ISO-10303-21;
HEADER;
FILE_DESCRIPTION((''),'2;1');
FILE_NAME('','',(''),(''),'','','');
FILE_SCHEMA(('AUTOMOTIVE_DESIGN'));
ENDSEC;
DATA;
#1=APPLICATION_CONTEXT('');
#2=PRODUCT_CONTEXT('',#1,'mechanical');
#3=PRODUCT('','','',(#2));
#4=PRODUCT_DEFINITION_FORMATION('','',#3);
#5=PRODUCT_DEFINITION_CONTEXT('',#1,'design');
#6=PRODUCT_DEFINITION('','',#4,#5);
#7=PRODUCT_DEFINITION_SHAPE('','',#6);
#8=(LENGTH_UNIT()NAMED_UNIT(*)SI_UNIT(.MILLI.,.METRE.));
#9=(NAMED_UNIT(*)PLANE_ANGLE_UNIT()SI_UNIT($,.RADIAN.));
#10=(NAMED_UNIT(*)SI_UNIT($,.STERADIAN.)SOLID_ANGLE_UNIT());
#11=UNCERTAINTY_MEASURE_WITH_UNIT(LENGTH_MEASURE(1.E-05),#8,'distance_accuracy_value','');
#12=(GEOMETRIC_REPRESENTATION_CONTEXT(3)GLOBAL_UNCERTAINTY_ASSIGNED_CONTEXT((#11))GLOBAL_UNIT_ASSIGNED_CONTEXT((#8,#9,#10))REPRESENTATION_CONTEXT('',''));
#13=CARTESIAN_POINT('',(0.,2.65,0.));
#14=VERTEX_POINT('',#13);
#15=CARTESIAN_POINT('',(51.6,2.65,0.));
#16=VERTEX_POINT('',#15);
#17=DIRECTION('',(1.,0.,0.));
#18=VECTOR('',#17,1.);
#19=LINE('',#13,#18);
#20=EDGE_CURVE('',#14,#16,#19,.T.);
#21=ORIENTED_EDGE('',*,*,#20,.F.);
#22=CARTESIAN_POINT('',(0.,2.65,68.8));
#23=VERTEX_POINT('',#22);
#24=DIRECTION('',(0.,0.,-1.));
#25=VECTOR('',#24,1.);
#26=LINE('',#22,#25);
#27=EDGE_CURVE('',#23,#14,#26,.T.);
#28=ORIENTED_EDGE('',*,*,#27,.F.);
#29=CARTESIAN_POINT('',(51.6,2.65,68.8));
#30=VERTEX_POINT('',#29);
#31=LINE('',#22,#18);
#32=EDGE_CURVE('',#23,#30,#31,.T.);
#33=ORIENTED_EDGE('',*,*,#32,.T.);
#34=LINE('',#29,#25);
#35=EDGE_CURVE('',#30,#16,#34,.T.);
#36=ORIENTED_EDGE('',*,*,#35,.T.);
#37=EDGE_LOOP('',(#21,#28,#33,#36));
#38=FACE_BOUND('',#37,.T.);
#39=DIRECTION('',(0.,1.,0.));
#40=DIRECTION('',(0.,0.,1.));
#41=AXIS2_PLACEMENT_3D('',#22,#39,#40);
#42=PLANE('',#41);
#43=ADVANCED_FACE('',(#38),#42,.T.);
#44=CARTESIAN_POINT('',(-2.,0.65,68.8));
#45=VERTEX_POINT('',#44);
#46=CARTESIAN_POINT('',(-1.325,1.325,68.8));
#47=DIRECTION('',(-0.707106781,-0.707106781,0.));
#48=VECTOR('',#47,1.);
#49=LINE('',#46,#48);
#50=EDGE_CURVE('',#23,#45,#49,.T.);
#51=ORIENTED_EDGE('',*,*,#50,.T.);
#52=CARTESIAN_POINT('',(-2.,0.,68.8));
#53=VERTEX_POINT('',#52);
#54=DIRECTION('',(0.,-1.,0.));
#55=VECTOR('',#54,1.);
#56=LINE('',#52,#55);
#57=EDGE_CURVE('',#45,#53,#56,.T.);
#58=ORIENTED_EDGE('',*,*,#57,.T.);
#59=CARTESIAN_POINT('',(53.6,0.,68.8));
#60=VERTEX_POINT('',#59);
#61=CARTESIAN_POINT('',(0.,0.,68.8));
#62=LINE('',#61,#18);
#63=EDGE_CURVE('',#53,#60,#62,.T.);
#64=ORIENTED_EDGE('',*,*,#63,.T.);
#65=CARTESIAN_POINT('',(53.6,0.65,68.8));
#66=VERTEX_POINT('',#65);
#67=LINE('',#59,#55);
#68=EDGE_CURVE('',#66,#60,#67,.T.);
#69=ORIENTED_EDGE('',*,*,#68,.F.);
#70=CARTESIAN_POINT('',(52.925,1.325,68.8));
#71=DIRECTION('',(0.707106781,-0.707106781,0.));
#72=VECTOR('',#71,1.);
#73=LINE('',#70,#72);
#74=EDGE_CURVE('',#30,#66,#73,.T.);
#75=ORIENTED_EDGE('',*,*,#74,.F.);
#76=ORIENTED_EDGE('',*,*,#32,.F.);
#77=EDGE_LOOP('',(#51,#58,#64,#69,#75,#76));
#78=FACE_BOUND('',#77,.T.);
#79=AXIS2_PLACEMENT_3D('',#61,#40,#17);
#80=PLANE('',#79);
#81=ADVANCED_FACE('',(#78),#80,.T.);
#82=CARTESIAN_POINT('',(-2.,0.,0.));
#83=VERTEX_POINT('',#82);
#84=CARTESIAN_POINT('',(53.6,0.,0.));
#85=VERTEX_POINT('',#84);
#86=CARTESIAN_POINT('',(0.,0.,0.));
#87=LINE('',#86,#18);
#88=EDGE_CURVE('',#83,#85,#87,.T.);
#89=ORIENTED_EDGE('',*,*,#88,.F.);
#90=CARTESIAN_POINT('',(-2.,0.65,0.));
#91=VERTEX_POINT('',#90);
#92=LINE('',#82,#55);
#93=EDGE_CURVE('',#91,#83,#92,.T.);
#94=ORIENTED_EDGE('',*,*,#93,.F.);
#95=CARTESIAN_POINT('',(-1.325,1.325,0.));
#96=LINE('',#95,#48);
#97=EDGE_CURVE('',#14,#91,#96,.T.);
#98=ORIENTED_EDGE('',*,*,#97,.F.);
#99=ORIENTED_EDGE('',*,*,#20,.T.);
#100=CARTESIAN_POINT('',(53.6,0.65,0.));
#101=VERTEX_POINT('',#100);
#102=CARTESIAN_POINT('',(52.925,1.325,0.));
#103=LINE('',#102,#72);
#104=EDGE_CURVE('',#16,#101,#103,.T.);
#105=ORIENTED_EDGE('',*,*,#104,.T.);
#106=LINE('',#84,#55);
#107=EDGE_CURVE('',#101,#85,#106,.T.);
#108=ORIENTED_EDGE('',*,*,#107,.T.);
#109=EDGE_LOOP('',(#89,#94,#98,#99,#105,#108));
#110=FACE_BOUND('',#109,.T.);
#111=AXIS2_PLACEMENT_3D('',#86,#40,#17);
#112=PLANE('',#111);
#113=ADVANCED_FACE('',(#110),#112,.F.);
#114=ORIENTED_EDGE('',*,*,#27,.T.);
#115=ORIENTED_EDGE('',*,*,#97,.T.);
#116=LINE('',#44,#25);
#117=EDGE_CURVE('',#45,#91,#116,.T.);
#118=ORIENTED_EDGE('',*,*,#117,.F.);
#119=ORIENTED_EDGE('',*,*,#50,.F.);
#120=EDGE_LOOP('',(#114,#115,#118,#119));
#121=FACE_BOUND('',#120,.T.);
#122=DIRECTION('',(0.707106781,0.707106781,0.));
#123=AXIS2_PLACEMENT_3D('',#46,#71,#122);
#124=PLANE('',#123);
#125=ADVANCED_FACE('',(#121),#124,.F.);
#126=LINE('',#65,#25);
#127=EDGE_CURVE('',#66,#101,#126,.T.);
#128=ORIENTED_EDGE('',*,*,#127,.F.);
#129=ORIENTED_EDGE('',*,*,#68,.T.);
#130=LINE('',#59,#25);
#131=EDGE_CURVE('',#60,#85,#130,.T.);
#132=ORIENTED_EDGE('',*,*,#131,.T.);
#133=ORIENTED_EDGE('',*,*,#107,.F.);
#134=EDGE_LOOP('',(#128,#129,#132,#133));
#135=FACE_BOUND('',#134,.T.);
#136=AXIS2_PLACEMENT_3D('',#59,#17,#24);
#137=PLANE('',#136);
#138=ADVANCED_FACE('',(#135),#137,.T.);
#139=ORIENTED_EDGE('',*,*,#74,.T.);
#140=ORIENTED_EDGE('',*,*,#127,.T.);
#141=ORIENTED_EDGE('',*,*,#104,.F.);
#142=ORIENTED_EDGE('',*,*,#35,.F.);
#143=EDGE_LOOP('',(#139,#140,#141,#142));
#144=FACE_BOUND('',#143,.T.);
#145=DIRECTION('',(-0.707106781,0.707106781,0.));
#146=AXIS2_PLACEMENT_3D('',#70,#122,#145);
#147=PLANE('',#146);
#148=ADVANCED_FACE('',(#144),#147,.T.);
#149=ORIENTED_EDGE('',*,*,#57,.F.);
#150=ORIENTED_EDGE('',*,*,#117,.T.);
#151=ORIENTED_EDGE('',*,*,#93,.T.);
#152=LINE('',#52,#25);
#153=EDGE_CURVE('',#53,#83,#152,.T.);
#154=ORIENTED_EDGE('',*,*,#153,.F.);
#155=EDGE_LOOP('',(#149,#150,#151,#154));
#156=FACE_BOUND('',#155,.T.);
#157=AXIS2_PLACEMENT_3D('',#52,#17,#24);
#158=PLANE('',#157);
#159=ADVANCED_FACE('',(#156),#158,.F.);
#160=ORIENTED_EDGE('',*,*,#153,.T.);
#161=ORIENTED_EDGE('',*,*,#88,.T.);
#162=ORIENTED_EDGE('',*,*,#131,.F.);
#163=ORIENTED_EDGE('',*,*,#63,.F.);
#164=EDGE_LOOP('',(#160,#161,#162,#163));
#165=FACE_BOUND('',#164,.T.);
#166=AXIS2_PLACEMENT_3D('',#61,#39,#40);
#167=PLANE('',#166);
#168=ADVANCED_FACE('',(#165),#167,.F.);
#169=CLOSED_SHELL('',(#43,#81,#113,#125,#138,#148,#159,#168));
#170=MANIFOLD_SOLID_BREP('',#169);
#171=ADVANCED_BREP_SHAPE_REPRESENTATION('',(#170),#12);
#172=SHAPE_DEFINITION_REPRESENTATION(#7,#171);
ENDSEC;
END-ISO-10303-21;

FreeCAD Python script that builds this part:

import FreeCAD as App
import Part
import Sketcher
from FreeCAD import Vector
Q = App.Units.Quantity


def add_polygon(sketch, points):
    """Adds a closed chain of lines whose ends are joined by coincident constraints."""
    first, n = sketch.GeometryCount, len(points)
    for a, b in zip(points, points[1:] + points[:1]):
        sketch.addGeometry(Part.LineSegment(App.Vector(*a, 0), App.Vector(*b, 0)), False)
    for i in range(n):
        sketch.addConstraint(Sketcher.Constraint("Coincident", first + i, 2, first + (i + 1) % n, 1))

doc = App.newDocument("Part")
body = doc.addObject("PartDesign::Body", "Body")

# Sketch on XY plane
sketch1 = doc.addObject("Sketcher::SketchObject", "Sketch")
body.addObject(sketch1)
sketch1.AttachmentSupport = (doc.XY_Plane, [""])
sketch1.MapMode = "FlatFace"
add_polygon(sketch1, [(-2, 0.7), (-2, 0), (25.8, 0), (25.8, 2.6), (0, 2.6)])  # lines 0-4
sketch1.addConstraint(Sketcher.Constraint("Vertical", 0))
sketch1.addConstraint(Sketcher.Constraint("Horizontal", 1))
sketch1.addConstraint(Sketcher.Constraint("Vertical", 2))
sketch1.addConstraint(Sketcher.Constraint("Horizontal", 3))
sketch1.addConstraint(Sketcher.Constraint("PointOnObject", 0, 2, -1))
sketch1.addConstraint(Sketcher.Constraint("PointOnObject", 3, 2, -2))
sketch1.addConstraint(Sketcher.Constraint("Angle", 4, Q("-135 deg")))
sketch1.addConstraint(Sketcher.Constraint("DistanceX", 1, 1, 1, 2, 27.8))
sketch1.addConstraint(Sketcher.Constraint("DistanceX", 3, 2, 3, 1, 25.8))
sketch1.addConstraint(Sketcher.Constraint("DistanceY", 0, 2, 0, 1, 0.65))
pad1 = doc.addObject("PartDesign::Pad", "Pad")
body.addObject(pad1)
pad1.Profile = sketch1
pad1.Length = 68.8
doc.recompute()

datumplane = doc.addObject("PartDesign::Plane", "DatumPlane")
body.addObject(datumplane)
datumplane.AttachmentSupport = (doc.YZ_Plane, [""])
datumplane.MapMode = "FlatFace"
datumplane.AttachmentOffset = App.Placement(Vector(0, 0, 25.8), App.Rotation())
mirrored = doc.addObject("PartDesign::Mirrored", "Mirrored")
body.addObject(mirrored)
mirrored.Originals = [pad1]
mirrored.MirrorPlane = (datumplane, [""])
body.Tip = mirrored

doc.recompute()
